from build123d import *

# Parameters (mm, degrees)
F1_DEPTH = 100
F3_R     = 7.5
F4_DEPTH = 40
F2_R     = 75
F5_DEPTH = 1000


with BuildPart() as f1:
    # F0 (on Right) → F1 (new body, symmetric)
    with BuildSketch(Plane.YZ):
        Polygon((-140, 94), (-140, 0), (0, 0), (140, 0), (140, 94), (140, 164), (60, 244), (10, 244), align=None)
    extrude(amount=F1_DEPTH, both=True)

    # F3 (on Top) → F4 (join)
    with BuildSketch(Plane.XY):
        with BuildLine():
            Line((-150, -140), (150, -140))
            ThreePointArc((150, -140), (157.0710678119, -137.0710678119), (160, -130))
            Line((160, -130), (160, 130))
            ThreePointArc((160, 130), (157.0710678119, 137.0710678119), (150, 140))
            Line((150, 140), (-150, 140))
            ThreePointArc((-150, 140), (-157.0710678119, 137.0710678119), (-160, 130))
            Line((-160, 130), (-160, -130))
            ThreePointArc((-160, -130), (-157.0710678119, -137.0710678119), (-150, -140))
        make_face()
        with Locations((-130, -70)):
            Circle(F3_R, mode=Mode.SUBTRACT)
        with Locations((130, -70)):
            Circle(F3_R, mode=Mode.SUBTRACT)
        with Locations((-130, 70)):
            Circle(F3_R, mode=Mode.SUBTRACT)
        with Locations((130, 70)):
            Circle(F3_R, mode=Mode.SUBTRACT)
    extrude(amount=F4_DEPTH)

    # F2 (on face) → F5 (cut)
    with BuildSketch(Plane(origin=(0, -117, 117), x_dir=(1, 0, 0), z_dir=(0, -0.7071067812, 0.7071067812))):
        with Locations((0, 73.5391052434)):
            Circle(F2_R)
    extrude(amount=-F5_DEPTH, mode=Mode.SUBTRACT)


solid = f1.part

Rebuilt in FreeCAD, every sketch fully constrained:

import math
import FreeCAD as App
import Part
import Sketcher
from FreeCAD import Vector
Q = App.Units.Quantity


def add_polygon(sketch, points):
    """Adds a closed chain of lines whose ends are joined by coincident constraints."""
    first, n = sketch.GeometryCount, len(points)
    for a, b in zip(points, points[1:] + points[:1]):
        sketch.addGeometry(Part.LineSegment(App.Vector(*a, 0), App.Vector(*b, 0)), False)
    for i in range(n):
        sketch.addConstraint(Sketcher.Constraint("Coincident", first + i, 2, first + (i + 1) % n, 1))

doc = App.newDocument("Part")
body = doc.addObject("PartDesign::Body", "Body")

sketch1 = body.newObject("Sketcher::SketchObject", "Sketch")
sketch1.AttachmentSupport = (doc.getObject("YZ_Plane"), [""])
sketch1.MapMode = "FlatFace"
add_polygon(sketch1, [(-140, 94), (-140, 0), (140, 0), (140, 164), (60, 244), (10, 244)])
sketch1.addConstraint([
    Sketcher.Constraint("Vertical", 0),
    Sketcher.Constraint("Horizontal", 1),
    Sketcher.Constraint("Vertical", 2),
    Sketcher.Constraint("Horizontal", 4),
    Sketcher.Constraint("Symmetric", 0, 2, 1, 2, -1, 1),
    Sketcher.Constraint("Perpendicular", 3, 5),
    Sketcher.Constraint("DistanceX", 1, 1, 1, 2, Q("280 mm")),
    Sketcher.Constraint("DistanceX", 4, 2, 4, 1, Q("50 mm")),
    Sketcher.Constraint("DistanceY", 0, 2, 0, 1, Q("94 mm")),
    Sketcher.Constraint("DistanceY", 2, 1, 2, 2, Q("164 mm")),
    Sketcher.Constraint("Angle", 3, Q("135 deg")),
])
pad1 = body.newObject("PartDesign::Pad", "Pad")
pad1.Profile = sketch1
pad1.Length = 200
pad1.Midplane = True

sketch2 = body.newObject("Sketcher::SketchObject", "Sketch001")
sketch2.AttachmentSupport = (doc.getObject("XY_Plane"), [""])
sketch2.MapMode = "FlatFace"
sketch2.addGeometry([
    Part.LineSegment(Vector(-150, -140, 0), Vector(150, -140, 0)),
    Part.ArcOfCircle(Part.Circle(Vector(150, -130, 0), Vector(0, 0, 1), 10), math.radians(-90), math.radians(0)),
    Part.LineSegment(Vector(160, -130, 0), Vector(160, 130, 0)),
    Part.ArcOfCircle(Part.Circle(Vector(150, 130, 0), Vector(0, 0, 1), 10), math.radians(0), math.radians(90)),
    Part.LineSegment(Vector(150, 140, 0), Vector(-150, 140, 0)),
    Part.ArcOfCircle(Part.Circle(Vector(-150, 130, 0), Vector(0, 0, 1), 10), math.radians(90), math.radians(180)),
    Part.LineSegment(Vector(-160, 130, 0), Vector(-160, -130, 0)),
    Part.ArcOfCircle(Part.Circle(Vector(-150, -130, 0), Vector(0, 0, 1), 10), math.radians(180), math.radians(270)),
    Part.Circle(Vector(-130, -70, 0), Vector(0, 0, 1), 8),
    Part.Circle(Vector(130, -70, 0), Vector(0, 0, 1), 8),
    Part.Circle(Vector(-130, 70, 0), Vector(0, 0, 1), 8),
    Part.Circle(Vector(130, 70, 0), Vector(0, 0, 1), 8),
], False)
sketch2.addConstraint([
    Sketcher.Constraint("Tangent", 0, 2, 1, 1),
    Sketcher.Constraint("Tangent", 1, 2, 2, 1),
    Sketcher.Constraint("Tangent", 2, 2, 3, 1),
    Sketcher.Constraint("Tangent", 3, 2, 4, 1),
    Sketcher.Constraint("Tangent", 4, 2, 5, 1),
    Sketcher.Constraint("Tangent", 5, 2, 6, 1),
    Sketcher.Constraint("Tangent", 6, 2, 7, 1),
    Sketcher.Constraint("Tangent", 7, 2, 0, 1),
    Sketcher.Constraint("Horizontal", 0),
    Sketcher.Constraint("Vertical", 2),
    Sketcher.Constraint("Horizontal", 4),
    Sketcher.Constraint("Vertical", 6),
    Sketcher.Constraint("Equal", 1, 3),
    Sketcher.Constraint("Equal", 3, 5),
    Sketcher.Constraint("Equal", 5, 7),
    Sketcher.Constraint("Equal", 8, 9),
    Sketcher.Constraint("Equal", 9, 10),
    Sketcher.Constraint("Equal", 10, 11),
    Sketcher.Constraint("Symmetric", 1, 3, 5, 3, -1, 1),
    Sketcher.Constraint("Symmetric", 9, 3, 10, 3, -1, 1),
    Sketcher.Constraint("Symmetric", 8, 3, 11, 3, -1, 1),
    Sketcher.Constraint("Symmetric", 8, 3, 9, 3, -2),
    Sketcher.Constraint("Diameter", 8, Q("15 mm")),
    Sketcher.Constraint("Radius", 1, Q("10 mm")),
    Sketcher.Constraint("DistanceX", 0, 1, 0, 2, Q("300 mm")),
    Sketcher.Constraint("DistanceY", 2, 1, 2, 2, Q("260 mm")),
    Sketcher.Constraint("DistanceX", 8, 3, -1, 1, Q("130 mm")),
    Sketcher.Constraint("DistanceY", 8, 3, -1, 1, Q("70 mm")),
])
pad2 = body.newObject("PartDesign::Pad", "Pad001")
pad2.Profile = sketch2
pad2.Length = 40

sketch3 = body.newObject("Sketcher::SketchObject", "Sketch002")
sketch3.Placement = App.Placement(Vector(0, -117, 117), App.Rotation(Vector(1, 0, 0), Vector(0, 0.707106781, 0.707106781), Vector(0, -0.707106781, 0.707106781), "ZXY"))
sketch3.addGeometry(Part.Circle(Vector(0, 74, 0), Vector(0, 0, 1), 75), False)
sketch3.addConstraint([
    Sketcher.Constraint("PointOnObject", 0, 3, -2),
    Sketcher.Constraint("Diameter", 0, Q("150 mm")),
    Sketcher.Constraint("DistanceY", -1, 1, 0, 3, Q("73.539105 mm")),
])
pocket1 = body.newObject("PartDesign::Pocket", "Pocket")
pocket1.Profile = sketch3
pocket1.Length = 1000

doc.recompute()
